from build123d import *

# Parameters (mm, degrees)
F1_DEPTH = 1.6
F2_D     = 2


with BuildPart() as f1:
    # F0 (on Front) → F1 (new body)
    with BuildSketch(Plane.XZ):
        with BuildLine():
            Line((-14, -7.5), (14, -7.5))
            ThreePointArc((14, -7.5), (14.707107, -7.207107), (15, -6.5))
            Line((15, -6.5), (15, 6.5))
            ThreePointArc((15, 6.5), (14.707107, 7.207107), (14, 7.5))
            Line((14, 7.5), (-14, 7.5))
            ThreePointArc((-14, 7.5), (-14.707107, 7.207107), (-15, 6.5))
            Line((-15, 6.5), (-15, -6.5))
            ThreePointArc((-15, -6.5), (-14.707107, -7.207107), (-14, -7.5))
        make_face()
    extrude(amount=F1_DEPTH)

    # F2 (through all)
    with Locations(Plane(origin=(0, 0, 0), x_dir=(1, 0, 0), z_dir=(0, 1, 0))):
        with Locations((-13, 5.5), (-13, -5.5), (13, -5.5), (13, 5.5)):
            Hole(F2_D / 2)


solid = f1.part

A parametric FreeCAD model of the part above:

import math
import FreeCAD as App
import Part
import Sketcher

V = App.Vector
Q = App.Units.Quantity

doc = App.newDocument("Part")
params = doc.addObject("Spreadsheet::Sheet", "Params")
for row, (alias, value) in enumerate([
    ("sketch1_radius", "0.999999 mm"),
    ("sketch1_width", "28 mm"),
    ("sketch1_height", "13 mm"),
    ("pad1_length", "1.6 mm"),
    ("sketch2_diameter", "2 mm"),
    ("hole_diameter", "2 mm"),
], start=1):
    params.set(f"A{row}", alias)
    params.set(f"B{row}", "=" + value)
    params.setAlias(f"B{row}", alias)

body = doc.addObject("PartDesign::Body", "Body")

sketch1 = body.newObject("Sketcher::SketchObject", "Sketch")
sketch1.AttachmentSupport = (doc.getObject("XZ_Plane"), [""])
sketch1.MapMode = "FlatFace"
sketch1.addGeometry([
    Part.LineSegment(V(-14, -7.5, 0), V(14, -7.5, 0)),
    Part.ArcOfCircle(Part.Circle(V(14.000001, -6.500001, 0), V(0, 0, 1), 0.999999), math.radians(-90.000043), math.radians(0.000043)),
    Part.LineSegment(V(15, -6.5, 0), V(15, 6.5, 0)),
    Part.ArcOfCircle(Part.Circle(V(14.000001, 6.500001, 0), V(0, 0, 1), 0.999999), math.radians(-0.000043), math.radians(90.000043)),
    Part.LineSegment(V(14, 7.5, 0), V(-14, 7.5, 0)),
    Part.ArcOfCircle(Part.Circle(V(-14.000001, 6.500001, 0), V(0, 0, 1), 0.999999), math.radians(89.999957), math.radians(180.000043)),
    Part.LineSegment(V(-15, 6.5, 0), V(-15, -6.5, 0)),
    Part.ArcOfCircle(Part.Circle(V(-14.000001, -6.500001, 0), V(0, 0, 1), 0.999999), math.radians(179.999957), math.radians(270.000043)),
], False)
sketch1.addConstraint([
    Sketcher.Constraint("Tangent", 0, 2, 1, 1),
    Sketcher.Constraint("Tangent", 1, 2, 2, 1),
    Sketcher.Constraint("Tangent", 2, 2, 3, 1),
    Sketcher.Constraint("Tangent", 3, 2, 4, 1),
    Sketcher.Constraint("Tangent", 4, 2, 5, 1),
    Sketcher.Constraint("Tangent", 5, 2, 6, 1),
    Sketcher.Constraint("Tangent", 6, 2, 7, 1),
    Sketcher.Constraint("Tangent", 7, 2, 0, 1),
    Sketcher.Constraint("Horizontal", 0),
    Sketcher.Constraint("Vertical", 2),
    Sketcher.Constraint("Horizontal", 4),
    Sketcher.Constraint("Vertical", 6),
    Sketcher.Constraint("Equal", 1, 3),
    Sketcher.Constraint("Equal", 3, 5),
    Sketcher.Constraint("Equal", 5, 7),
    Sketcher.Constraint("Symmetric", 1, 3, 5, 3, -1, 1),
    Sketcher.Constraint("Radius", 1, Q("0.999999 mm")),
    Sketcher.Constraint("DistanceX", 0, 1, 0, 2, Q("28 mm")),
    Sketcher.Constraint("DistanceY", 2, 1, 2, 2, Q("13 mm")),
])
sketch1.setExpression("Constraints[16]", "Params.sketch1_radius")
sketch1.setExpression("Constraints[17]", "Params.sketch1_width")
sketch1.setExpression("Constraints[18]", "Params.sketch1_height")
pad1 = body.newObject("PartDesign::Pad", "Pad")
pad1.Profile = sketch1
pad1.setExpression("Length", "Params.pad1_length")

sketch2 = body.newObject("Sketcher::SketchObject", "Sketch001")
sketch2.AttachmentSupport = (doc.getObject("XZ_Plane"), [""])
sketch2.MapMode = "FlatFace"
sketch2.addGeometry([
    Part.Circle(V(-13, -5.5, 0), V(0, 0, 1), 1),
    Part.Circle(V(-13, 5.5, 0), V(0, 0, 1), 1),
    Part.Circle(V(13, 5.5, 0), V(0, 0, 1), 1),
    Part.Circle(V(13, -5.5, 0), V(0, 0, 1), 1),
], False)
sketch2.addConstraint([
    Sketcher.Constraint("Equal", 0, 1),
    Sketcher.Constraint("Equal", 1, 2),
    Sketcher.Constraint("Equal", 2, 3),
    Sketcher.Constraint("Symmetric", 0, 3, 2, 3, -1, 1),
    Sketcher.Constraint("Symmetric", 1, 3, 3, 3, -1, 1),
    Sketcher.Constraint("Symmetric", 1, 3, 2, 3, -2),
    Sketcher.Constraint("Diameter", 0, Q("2 mm")),
    Sketcher.Constraint("DistanceX", 0, 3, -1, 1, Q("13 mm")),
    Sketcher.Constraint("DistanceY", 0, 3, 1, 3, Q("11 mm")),
])
sketch2.setExpression("Constraints[6]", "Params.sketch2_diameter")
doc.recompute()
hole = body.newObject("PartDesign::Hole", "Hole")
hole.Profile = sketch2
hole.ThreadType = "None"
hole.setExpression("Diameter", "Params.hole_diameter")
hole.DepthType = "ThroughAll"
hole.Reversed = True

doc.recompute()
